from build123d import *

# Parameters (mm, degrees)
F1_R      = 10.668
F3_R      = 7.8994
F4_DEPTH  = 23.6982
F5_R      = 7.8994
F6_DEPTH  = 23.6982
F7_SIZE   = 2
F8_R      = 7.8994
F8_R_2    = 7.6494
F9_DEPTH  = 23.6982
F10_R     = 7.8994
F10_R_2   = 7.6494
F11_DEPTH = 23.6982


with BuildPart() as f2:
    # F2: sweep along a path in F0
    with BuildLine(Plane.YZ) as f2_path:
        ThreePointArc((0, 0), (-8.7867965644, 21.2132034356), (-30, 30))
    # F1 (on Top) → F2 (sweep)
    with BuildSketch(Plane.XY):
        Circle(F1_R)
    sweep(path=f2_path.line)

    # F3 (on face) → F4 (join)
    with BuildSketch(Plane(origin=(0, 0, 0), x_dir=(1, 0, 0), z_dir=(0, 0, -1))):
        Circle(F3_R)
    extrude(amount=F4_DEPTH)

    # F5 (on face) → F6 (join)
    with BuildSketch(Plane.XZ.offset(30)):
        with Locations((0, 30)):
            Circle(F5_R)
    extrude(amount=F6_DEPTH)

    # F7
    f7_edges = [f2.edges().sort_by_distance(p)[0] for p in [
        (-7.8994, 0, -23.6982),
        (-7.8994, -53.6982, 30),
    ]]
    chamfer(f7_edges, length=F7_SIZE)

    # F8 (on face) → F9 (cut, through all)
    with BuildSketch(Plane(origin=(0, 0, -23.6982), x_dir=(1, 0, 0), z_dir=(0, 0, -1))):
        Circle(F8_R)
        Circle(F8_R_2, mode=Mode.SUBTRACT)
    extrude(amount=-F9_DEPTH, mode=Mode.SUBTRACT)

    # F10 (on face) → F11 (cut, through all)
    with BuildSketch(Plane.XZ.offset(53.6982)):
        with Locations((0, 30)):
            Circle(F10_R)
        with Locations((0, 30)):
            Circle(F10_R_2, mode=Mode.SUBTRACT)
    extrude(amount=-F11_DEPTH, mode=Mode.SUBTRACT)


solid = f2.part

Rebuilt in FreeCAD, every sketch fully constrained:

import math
import FreeCAD as App
import Part
import Sketcher
Q = App.Units.Quantity


def edges_at(feature, points):
    """Names of the edges that pass closest to the given points."""
    edges = feature.Shape.Edges
    near = lambda p: min(range(len(edges)), key=lambda i: edges[i].distToShape(Part.Vertex(*p))[0])
    return sorted({f"Edge{near(p) + 1}" for p in points})

doc = App.newDocument("Part")
params = doc.addObject("Spreadsheet::Sheet", "Params")
for row, (alias, value) in enumerate([
    ("sketch1_diameter", "0.84 in"),
    ("sketch3_diameter", "0.622 in"),
    ("pad1_length", "0.933 in"),
    ("sketch4_diameter", "0.622 in"),
    ("pad2_length", "0.933 in"),
    ("chamfer_size", "2 mm"),
    ("sketch5_diameter", "0.622 in"),
    ("pocket1_length", "0.933 in"),
    ("sketch6_diameter", "0.622 in"),
    ("pocket2_length", "0.933 in"),
], start=1):
    params.set(f"A{row}", alias)
    params.set(f"B{row}", "=" + value)
    params.setAlias(f"B{row}", alias)

body = doc.addObject("PartDesign::Body", "Body")

# Sketch on XY plane
sketch1 = body.newObject("Sketcher::SketchObject", "Sketch")
sketch1.AttachmentSupport = (doc.getObject("XY_Plane"), [""])
sketch1.MapMode = "FlatFace"
sketch1.addGeometry(Part.Circle(App.Vector(0, 0, 0), App.Vector(0, 0, 1), 10.668), False)
sketch1.addConstraint([
    Sketcher.Constraint("Coincident", 0, 3, -1, 1),
    Sketcher.Constraint("Diameter", 0, Q("0.84 in")),
])
sketch1.setExpression("Constraints[1]", "Params.sketch1_diameter")

# Sketch on YZ plane
sketch2 = body.newObject("Sketcher::SketchObject", "Sketch001")
sketch2.AttachmentSupport = (doc.getObject("YZ_Plane"), [""])
sketch2.MapMode = "FlatFace"
sketch2.addGeometry(Part.ArcOfCircle(Part.Circle(App.Vector(-30, 0, 0), App.Vector(0, 0, 1), 30), math.radians(0), math.radians(90)), False)
sketch2.addConstraint([
    Sketcher.Constraint("Coincident", 0, 1, -1, 1),
    Sketcher.Constraint("PointOnObject", 0, 3, -1),
    Sketcher.Constraint("Radius", 0, Q("30 mm")),
    Sketcher.Constraint("DistanceX", 0, 2, -1, 1, Q("30 mm")),
])
doc.recompute()

additivepipe = body.newObject("PartDesign::AdditivePipe", "AdditivePipe")
additivepipe.Profile = sketch1
additivepipe.Spine = (sketch2, ["Edge1"])

# Sketch on XY plane
sketch3 = body.newObject("Sketcher::SketchObject", "Sketch002")
sketch3.AttachmentSupport = (doc.getObject("XY_Plane"), [""])
sketch3.MapMode = "FlatFace"
sketch3.addGeometry(Part.Circle(App.Vector(0, 0, 0), App.Vector(0, 0, 1), 7.8994), False)
sketch3.addConstraint([
    Sketcher.Constraint("Coincident", 0, 3, -1, 1),
    Sketcher.Constraint("Diameter", 0, Q("0.622 in")),
])
sketch3.setExpression("Constraints[1]", "Params.sketch3_diameter")
pad1 = body.newObject("PartDesign::Pad", "Pad")
pad1.Profile = sketch3
pad1.setExpression("Length", "Params.pad1_length")
pad1.Reversed = True

# Sketch on XZ plane
sketch4 = body.newObject("Sketcher::SketchObject", "Sketch003")
sketch4.AttachmentSupport = (doc.getObject("XZ_Plane"), [""])
sketch4.MapMode = "FlatFace"
sketch4.AttachmentOffset = App.Placement(App.Vector(0, 0, 30), App.Rotation())
sketch4.addGeometry(Part.Circle(App.Vector(0, 30, 0), App.Vector(0, 0, 1), 7.8994), False)
sketch4.addConstraint([
    Sketcher.Constraint("PointOnObject", 0, 3, -2),
    Sketcher.Constraint("Diameter", 0, Q("0.622 in")),
    Sketcher.Constraint("DistanceY", -1, 1, 0, 3, Q("30 mm")),
])
sketch4.setExpression("Constraints[1]", "Params.sketch4_diameter")
pad2 = body.newObject("PartDesign::Pad", "Pad001")
pad2.Profile = sketch4
pad2.setExpression("Length", "Params.pad2_length")
doc.recompute()

chamfer = body.newObject("PartDesign::Chamfer", "Chamfer")
chamfer.Base = (pad2, edges_at(pad2, [(-7.899, 0, -23.698), (-7.899, -53.698, 30)]))
chamfer.setExpression("Size", "Params.chamfer_size")

# Sketch on XY plane
sketch5 = body.newObject("Sketcher::SketchObject", "Sketch004")
sketch5.AttachmentSupport = (doc.getObject("XY_Plane"), [""])
sketch5.MapMode = "FlatFace"
sketch5.AttachmentOffset = App.Placement(App.Vector(0, 0, -0.933 * 25.4), App.Rotation())
sketch5.addGeometry([
    Part.Circle(App.Vector(0, 0, 0), App.Vector(0, 0, 1), 7.8994),
    Part.Circle(App.Vector(0, 0, 0), App.Vector(0, 0, 1), 7.6494),
], False)
sketch5.addConstraint([
    Sketcher.Constraint("Coincident", 0, 3, -1, 1),
    Sketcher.Constraint("Coincident", 1, 3, -1, 1),
    Sketcher.Constraint("Diameter", 0, Q("0.622 in")),
    Sketcher.Constraint("Diameter", 1, Q("15.2988 mm")),
])
sketch5.setExpression("Constraints[2]", "Params.sketch5_diameter")
pocket1 = body.newObject("PartDesign::Pocket", "Pocket")
pocket1.Profile = sketch5
pocket1.setExpression("Length", "Params.pocket1_length")
pocket1.Reversed = True

# Sketch on XZ plane
sketch6 = body.newObject("Sketcher::SketchObject", "Sketch005")
sketch6.AttachmentSupport = (doc.getObject("XZ_Plane"), [""])
sketch6.MapMode = "FlatFace"
sketch6.AttachmentOffset = App.Placement(App.Vector(0, 0, 53.6982), App.Rotation())
sketch6.addGeometry([
    Part.Circle(App.Vector(0, 30, 0), App.Vector(0, 0, 1), 7.8994),
    Part.Circle(App.Vector(0, 30, 0), App.Vector(0, 0, 1), 7.6494),
], False)
sketch6.addConstraint([
    Sketcher.Constraint("Coincident", 1, 3, 0, 3),
    Sketcher.Constraint("PointOnObject", 0, 3, -2),
    Sketcher.Constraint("Diameter", 0, Q("0.622 in")),
    Sketcher.Constraint("Diameter", 1, Q("15.2988 mm")),
    Sketcher.Constraint("DistanceY", -1, 1, 0, 3, Q("30 mm")),
])
sketch6.setExpression("Constraints[2]", "Params.sketch6_diameter")
pocket2 = body.newObject("PartDesign::Pocket", "Pocket001")
pocket2.Profile = sketch6
pocket2.setExpression("Length", "Params.pocket2_length")

doc.recompute()
